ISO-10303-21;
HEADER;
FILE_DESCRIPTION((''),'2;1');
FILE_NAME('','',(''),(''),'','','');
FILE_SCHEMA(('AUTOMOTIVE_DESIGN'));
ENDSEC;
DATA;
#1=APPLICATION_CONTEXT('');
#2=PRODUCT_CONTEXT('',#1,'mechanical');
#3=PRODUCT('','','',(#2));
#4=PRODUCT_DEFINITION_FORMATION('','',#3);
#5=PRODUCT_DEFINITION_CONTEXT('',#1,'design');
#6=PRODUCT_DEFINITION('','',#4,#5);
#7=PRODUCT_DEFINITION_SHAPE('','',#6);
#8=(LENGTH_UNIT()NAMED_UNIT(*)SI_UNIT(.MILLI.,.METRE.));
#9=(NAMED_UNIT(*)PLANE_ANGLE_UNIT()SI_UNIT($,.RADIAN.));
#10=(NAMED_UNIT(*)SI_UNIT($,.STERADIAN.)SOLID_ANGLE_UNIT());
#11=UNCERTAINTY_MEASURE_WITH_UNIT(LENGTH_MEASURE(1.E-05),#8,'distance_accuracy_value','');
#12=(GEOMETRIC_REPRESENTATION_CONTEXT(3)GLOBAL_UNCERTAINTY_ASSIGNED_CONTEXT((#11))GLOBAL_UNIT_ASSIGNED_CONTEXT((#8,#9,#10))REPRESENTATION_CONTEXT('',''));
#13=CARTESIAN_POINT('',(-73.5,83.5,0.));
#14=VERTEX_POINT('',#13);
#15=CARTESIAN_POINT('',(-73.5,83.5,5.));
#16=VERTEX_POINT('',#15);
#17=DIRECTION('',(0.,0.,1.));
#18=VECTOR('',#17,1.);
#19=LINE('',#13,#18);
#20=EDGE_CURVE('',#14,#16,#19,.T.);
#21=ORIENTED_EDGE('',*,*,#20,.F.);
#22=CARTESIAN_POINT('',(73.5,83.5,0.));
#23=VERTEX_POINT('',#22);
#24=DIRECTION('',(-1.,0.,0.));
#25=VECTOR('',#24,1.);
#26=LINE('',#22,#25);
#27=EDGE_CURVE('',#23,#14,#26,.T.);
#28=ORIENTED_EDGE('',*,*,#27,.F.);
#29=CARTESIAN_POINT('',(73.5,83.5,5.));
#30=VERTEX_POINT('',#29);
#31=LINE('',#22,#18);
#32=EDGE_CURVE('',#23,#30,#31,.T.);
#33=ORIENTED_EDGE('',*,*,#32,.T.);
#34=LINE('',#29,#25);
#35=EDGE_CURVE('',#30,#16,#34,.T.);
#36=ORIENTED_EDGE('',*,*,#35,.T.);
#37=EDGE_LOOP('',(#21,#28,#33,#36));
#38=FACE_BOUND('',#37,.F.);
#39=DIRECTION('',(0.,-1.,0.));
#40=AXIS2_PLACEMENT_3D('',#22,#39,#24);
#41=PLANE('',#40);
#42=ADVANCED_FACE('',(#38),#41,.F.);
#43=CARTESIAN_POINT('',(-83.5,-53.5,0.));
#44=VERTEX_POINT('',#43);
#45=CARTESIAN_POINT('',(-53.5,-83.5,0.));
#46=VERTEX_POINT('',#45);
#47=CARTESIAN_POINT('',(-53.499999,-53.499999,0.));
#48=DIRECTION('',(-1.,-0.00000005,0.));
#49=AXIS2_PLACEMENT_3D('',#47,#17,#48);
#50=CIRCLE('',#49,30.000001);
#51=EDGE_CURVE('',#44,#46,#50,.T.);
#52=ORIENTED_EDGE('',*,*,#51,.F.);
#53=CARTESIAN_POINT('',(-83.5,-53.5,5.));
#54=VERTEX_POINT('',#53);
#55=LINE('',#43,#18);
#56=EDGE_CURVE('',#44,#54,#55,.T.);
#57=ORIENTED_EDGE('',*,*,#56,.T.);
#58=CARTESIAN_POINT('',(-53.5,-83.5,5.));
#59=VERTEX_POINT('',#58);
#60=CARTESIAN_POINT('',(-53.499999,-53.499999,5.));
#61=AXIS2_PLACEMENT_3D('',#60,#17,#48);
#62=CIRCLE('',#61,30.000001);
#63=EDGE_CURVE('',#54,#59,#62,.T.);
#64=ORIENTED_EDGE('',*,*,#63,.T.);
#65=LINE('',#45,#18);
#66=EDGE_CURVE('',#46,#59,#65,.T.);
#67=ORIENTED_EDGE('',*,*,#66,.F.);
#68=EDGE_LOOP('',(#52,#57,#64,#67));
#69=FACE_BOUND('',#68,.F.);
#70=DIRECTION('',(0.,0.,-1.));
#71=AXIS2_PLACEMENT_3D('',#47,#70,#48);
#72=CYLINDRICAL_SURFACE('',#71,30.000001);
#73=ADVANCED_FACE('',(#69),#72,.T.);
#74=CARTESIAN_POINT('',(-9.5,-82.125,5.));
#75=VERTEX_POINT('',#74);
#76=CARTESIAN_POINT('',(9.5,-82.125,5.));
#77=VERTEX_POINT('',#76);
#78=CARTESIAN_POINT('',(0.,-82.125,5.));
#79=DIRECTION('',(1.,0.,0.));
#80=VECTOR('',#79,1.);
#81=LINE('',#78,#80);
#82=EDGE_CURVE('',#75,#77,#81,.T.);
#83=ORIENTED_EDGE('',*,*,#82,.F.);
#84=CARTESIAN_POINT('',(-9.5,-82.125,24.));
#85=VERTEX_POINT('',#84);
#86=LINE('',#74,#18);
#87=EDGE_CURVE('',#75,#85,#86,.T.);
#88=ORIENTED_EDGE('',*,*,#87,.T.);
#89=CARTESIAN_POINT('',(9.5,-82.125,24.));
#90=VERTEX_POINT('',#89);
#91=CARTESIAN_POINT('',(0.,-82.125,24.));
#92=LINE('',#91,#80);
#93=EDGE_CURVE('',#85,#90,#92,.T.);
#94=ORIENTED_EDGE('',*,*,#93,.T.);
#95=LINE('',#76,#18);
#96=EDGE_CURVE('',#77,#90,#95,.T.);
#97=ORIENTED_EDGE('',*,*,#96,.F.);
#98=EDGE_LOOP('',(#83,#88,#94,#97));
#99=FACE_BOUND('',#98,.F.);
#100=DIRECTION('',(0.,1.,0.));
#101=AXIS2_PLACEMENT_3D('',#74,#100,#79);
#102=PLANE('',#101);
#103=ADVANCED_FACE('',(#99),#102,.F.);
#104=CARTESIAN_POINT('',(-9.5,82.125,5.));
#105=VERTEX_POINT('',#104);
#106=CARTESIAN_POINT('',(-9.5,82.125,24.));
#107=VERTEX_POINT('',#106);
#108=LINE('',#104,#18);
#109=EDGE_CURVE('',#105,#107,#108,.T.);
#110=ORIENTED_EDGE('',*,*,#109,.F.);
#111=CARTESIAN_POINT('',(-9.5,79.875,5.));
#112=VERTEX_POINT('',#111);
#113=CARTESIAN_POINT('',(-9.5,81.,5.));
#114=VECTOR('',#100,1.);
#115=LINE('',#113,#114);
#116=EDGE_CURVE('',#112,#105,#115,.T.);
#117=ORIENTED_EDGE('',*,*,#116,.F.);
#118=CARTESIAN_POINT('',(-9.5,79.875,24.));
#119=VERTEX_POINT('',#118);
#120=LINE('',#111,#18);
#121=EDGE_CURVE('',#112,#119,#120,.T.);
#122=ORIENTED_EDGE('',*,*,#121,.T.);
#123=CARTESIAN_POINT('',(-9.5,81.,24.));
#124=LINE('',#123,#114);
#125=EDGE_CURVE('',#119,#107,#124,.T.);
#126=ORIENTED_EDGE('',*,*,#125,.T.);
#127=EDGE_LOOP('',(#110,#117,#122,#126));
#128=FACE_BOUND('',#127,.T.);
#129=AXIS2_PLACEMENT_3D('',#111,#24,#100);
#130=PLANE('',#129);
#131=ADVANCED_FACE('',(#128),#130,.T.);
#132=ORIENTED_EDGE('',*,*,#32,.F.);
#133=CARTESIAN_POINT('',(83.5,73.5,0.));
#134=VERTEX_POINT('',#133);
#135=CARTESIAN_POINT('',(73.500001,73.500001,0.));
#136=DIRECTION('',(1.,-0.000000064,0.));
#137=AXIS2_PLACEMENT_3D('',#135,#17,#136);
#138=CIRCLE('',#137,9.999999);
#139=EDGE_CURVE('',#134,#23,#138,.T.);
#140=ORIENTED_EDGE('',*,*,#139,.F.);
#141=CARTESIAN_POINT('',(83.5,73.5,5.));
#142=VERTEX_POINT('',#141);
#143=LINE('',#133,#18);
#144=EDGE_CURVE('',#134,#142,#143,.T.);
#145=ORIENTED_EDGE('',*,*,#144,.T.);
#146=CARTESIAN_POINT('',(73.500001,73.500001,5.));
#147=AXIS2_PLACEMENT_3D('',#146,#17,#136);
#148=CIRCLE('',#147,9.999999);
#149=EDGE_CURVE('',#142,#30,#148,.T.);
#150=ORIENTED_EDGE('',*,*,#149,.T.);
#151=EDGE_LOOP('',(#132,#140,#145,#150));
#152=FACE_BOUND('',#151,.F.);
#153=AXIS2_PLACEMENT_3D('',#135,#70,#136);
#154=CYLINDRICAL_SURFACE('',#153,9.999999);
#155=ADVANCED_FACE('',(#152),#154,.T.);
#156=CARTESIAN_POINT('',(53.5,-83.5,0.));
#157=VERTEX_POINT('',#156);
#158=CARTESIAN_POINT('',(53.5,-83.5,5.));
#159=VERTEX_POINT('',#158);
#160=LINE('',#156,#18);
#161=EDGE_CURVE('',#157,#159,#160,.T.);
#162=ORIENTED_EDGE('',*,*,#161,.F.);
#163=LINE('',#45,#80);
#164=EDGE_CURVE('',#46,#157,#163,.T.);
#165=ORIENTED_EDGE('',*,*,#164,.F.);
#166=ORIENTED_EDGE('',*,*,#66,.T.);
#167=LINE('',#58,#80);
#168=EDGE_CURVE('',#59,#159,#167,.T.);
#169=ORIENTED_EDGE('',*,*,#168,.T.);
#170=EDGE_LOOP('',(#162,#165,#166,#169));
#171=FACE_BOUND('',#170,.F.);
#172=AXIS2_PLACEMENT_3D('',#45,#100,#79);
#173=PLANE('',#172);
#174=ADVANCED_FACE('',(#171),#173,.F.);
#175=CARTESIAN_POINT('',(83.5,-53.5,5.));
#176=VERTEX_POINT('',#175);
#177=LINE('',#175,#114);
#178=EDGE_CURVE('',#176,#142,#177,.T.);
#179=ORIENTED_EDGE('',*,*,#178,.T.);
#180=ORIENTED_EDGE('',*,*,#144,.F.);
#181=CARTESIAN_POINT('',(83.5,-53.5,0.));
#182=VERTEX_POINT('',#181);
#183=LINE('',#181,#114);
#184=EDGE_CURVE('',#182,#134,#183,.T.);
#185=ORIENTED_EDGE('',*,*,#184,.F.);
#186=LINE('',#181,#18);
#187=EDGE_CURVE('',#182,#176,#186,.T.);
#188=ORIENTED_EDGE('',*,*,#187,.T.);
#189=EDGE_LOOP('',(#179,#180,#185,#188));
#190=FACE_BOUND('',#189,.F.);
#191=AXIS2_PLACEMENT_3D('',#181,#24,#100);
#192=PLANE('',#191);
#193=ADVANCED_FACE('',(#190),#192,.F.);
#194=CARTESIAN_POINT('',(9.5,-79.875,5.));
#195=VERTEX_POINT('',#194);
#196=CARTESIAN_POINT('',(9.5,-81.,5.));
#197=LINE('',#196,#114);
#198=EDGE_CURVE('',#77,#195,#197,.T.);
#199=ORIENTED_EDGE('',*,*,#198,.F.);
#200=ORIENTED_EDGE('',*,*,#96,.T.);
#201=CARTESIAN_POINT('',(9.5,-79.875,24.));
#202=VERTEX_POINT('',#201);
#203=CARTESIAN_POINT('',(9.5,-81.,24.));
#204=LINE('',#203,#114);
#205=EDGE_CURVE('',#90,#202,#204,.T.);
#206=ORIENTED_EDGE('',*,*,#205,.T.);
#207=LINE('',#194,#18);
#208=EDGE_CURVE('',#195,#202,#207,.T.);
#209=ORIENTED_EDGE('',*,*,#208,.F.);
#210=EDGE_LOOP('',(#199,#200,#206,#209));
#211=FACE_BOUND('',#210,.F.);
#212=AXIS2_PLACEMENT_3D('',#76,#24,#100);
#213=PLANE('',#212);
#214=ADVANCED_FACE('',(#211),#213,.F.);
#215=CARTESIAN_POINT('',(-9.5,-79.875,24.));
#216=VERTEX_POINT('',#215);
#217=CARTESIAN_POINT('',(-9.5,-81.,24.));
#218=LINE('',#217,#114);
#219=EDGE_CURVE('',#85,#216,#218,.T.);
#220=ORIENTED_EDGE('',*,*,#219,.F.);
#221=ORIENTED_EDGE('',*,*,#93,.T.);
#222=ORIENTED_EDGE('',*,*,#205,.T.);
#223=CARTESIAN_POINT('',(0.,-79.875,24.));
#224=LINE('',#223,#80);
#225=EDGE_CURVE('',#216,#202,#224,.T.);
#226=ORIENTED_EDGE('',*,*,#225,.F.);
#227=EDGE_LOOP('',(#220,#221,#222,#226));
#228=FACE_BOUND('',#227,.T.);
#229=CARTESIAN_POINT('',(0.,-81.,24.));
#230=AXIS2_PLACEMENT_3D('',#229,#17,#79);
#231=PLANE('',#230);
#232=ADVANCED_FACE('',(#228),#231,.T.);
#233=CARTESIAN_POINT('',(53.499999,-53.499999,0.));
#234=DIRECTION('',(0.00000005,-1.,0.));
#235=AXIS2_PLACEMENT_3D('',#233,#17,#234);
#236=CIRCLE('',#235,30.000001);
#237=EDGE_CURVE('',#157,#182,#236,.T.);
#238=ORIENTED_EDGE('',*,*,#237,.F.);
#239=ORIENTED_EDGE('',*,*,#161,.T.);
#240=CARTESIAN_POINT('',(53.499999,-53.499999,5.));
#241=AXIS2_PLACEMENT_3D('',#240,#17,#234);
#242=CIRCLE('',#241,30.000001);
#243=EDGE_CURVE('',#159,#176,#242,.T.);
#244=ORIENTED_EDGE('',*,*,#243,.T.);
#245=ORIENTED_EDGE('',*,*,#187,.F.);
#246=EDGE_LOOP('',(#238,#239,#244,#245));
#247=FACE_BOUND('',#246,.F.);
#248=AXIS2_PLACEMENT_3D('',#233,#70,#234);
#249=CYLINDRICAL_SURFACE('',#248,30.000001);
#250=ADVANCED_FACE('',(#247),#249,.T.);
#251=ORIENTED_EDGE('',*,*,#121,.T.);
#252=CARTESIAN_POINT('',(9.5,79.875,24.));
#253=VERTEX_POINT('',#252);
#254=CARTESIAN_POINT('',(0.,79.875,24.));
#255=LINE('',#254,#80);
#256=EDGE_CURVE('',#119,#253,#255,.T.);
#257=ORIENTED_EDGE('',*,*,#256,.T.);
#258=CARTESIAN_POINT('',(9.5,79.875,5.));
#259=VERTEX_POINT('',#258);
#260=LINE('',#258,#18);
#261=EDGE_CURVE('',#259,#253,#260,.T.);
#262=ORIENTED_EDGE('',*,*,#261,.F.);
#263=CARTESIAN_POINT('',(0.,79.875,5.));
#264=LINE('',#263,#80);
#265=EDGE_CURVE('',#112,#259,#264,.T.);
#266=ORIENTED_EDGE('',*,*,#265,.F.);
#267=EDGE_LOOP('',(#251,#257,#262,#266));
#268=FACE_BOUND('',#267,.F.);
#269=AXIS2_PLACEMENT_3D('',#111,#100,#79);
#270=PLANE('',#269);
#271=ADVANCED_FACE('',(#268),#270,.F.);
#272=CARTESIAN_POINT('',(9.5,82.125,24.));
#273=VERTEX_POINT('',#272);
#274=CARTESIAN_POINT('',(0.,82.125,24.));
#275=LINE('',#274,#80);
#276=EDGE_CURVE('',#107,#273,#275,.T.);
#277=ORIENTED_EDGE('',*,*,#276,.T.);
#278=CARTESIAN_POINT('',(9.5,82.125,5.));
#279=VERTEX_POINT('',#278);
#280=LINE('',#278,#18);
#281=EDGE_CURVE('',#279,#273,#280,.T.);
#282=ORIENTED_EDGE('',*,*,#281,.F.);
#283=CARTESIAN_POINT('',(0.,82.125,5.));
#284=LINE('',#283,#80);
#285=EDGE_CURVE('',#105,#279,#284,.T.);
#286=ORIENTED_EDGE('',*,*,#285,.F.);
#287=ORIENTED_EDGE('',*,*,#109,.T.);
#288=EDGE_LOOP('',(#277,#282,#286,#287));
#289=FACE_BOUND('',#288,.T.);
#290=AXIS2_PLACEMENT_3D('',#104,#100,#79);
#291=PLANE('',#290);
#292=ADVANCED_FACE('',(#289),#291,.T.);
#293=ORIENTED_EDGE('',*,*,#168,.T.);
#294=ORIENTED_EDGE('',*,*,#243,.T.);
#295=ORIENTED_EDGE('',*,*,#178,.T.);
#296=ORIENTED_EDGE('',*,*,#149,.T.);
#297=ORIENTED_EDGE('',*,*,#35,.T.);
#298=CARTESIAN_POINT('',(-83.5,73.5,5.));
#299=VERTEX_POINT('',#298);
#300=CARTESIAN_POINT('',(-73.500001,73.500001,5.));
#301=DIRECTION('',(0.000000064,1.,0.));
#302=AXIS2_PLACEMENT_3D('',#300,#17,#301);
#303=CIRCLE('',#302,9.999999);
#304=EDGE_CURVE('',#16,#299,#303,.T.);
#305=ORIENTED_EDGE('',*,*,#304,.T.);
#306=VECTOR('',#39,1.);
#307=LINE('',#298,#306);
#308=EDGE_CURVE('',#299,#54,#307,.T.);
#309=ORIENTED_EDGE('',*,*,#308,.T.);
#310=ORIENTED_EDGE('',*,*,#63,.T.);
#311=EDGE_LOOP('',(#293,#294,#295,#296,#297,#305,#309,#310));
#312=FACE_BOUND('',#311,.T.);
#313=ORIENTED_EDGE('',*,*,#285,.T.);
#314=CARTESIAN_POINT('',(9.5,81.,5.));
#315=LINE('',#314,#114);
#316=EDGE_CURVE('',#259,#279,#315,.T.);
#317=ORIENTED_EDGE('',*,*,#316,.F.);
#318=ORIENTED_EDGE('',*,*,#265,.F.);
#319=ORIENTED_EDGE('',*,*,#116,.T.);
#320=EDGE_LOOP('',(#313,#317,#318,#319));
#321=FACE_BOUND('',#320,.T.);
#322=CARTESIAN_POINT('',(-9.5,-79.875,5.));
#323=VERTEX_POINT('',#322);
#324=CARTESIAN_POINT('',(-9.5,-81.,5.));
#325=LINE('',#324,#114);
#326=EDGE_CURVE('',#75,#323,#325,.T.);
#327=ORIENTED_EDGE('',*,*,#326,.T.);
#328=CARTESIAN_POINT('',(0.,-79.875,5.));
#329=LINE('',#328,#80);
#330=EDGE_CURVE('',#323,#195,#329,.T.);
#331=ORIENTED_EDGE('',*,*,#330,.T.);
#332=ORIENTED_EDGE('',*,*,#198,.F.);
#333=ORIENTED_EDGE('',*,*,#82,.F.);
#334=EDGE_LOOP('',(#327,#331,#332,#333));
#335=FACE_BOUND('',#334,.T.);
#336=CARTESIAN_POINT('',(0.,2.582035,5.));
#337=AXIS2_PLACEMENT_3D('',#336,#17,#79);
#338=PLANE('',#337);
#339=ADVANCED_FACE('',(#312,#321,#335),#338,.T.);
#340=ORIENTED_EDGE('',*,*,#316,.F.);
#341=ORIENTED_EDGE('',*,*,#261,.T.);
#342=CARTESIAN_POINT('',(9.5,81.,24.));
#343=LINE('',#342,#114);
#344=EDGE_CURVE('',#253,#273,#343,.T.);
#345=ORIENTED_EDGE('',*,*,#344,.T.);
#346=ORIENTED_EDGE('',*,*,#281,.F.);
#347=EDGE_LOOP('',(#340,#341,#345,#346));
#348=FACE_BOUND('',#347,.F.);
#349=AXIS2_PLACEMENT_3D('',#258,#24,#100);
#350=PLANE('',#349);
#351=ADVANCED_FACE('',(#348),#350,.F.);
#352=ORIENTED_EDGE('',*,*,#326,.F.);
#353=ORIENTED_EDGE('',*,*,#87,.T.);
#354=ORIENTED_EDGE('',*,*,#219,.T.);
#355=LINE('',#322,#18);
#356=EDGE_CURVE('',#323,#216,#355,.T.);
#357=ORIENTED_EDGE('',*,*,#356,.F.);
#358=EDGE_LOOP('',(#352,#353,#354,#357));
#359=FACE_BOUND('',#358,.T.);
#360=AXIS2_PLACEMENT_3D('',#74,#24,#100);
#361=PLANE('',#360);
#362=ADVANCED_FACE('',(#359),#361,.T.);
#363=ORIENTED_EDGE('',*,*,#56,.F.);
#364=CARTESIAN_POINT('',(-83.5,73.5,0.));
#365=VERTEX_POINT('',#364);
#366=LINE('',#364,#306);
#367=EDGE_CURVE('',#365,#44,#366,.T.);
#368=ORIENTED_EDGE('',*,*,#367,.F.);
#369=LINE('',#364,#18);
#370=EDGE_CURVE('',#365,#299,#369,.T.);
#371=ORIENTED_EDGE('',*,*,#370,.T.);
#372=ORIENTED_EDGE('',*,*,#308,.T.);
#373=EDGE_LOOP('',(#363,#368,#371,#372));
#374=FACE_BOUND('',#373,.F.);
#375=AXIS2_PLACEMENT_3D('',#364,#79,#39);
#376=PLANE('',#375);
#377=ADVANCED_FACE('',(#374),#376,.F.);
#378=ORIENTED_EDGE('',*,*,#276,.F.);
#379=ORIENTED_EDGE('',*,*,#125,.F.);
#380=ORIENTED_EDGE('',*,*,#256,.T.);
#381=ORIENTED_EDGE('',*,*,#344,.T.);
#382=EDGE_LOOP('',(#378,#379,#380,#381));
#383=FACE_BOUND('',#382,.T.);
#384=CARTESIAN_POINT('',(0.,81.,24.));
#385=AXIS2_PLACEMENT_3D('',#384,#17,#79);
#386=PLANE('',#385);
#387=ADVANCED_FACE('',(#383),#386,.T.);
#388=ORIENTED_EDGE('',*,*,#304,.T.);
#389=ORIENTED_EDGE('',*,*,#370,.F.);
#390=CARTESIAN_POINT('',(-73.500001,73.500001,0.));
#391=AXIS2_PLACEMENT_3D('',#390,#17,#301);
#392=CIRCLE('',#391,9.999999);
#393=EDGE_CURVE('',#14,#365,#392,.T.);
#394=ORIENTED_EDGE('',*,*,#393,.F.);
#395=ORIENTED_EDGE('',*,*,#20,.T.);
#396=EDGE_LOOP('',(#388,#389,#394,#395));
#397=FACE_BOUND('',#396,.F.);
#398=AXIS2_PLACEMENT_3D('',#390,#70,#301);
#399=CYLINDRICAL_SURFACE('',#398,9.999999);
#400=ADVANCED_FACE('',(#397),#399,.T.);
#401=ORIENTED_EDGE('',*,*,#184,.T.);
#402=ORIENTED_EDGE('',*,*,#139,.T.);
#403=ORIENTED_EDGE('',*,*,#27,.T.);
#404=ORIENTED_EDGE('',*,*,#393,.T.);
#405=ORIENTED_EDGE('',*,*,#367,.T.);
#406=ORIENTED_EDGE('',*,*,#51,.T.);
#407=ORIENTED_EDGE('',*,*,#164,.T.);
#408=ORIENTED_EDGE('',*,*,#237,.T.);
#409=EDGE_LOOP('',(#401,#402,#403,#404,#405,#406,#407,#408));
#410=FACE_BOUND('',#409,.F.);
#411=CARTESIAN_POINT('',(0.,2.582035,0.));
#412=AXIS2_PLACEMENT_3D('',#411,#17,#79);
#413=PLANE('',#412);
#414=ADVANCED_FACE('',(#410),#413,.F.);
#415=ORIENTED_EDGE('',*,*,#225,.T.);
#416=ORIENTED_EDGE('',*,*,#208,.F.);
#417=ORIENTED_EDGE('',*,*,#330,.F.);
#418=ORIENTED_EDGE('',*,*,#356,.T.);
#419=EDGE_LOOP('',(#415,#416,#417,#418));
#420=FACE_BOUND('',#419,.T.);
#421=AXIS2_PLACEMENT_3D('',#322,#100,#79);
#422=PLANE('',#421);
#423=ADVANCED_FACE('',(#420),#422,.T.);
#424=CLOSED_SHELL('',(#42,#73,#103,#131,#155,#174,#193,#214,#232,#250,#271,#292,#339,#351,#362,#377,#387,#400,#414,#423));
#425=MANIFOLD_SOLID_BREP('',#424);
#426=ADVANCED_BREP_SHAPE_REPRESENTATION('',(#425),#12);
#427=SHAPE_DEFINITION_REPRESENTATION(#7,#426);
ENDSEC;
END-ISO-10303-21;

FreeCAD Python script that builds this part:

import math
import FreeCAD as App
import Part
import Sketcher
Q = App.Units.Quantity


def add_polygon(sketch, points):
    """Adds a closed chain of lines whose ends are joined by coincident constraints."""
    first, n = sketch.GeometryCount, len(points)
    for a, b in zip(points, points[1:] + points[:1]):
        sketch.addGeometry(Part.LineSegment(App.Vector(*a, 0), App.Vector(*b, 0)), False)
    for i in range(n):
        sketch.addConstraint(Sketcher.Constraint("Coincident", first + i, 2, first + (i + 1) % n, 1))

doc = App.newDocument("Part")
body = doc.addObject("PartDesign::Body", "Body")

sketch1 = body.newObject("Sketcher::SketchObject", "Sketch")
sketch1.AttachmentSupport = (doc.getObject("XY_Plane"), [""])
sketch1.MapMode = "FlatFace"
sketch1.addGeometry(Part.LineSegment(App.Vector(-53.5, -83.5, 0), App.Vector(53.5, -83.5, 0)), False)
sketch1.addGeometry(Part.ArcOfCircle(Part.Circle(App.Vector(53.499999, -53.499999, 0), App.Vector(0, 0, 1), 30.000001), math.radians(-89.999997), math.radians(-0.000003)), False)
sketch1.addGeometry(Part.LineSegment(App.Vector(83.5, -53.5, 0), App.Vector(83.5, 73.5, 0)), False)
sketch1.addGeometry(Part.ArcOfCircle(Part.Circle(App.Vector(73.500001, 73.500001, 0), App.Vector(0, 0, 1), 9.999999), math.radians(-0.000004), math.radians(90.000004)), False)
sketch1.addGeometry(Part.LineSegment(App.Vector(73.5, 83.5, 0), App.Vector(-73.5, 83.5, 0)), False)
sketch1.addGeometry(Part.ArcOfCircle(Part.Circle(App.Vector(-73.500001, 73.500001, 0), App.Vector(0, 0, 1), 9.999999), math.radians(89.999996), math.radians(180.000004)), False)
sketch1.addGeometry(Part.LineSegment(App.Vector(-83.5, 73.5, 0), App.Vector(-83.5, -53.5, 0)), False)
sketch1.addGeometry(Part.ArcOfCircle(Part.Circle(App.Vector(-53.499999, -53.499999, 0), App.Vector(0, 0, 1), 30.000001), math.radians(-179.999997), math.radians(-90.000003)), False)
sketch1.addConstraint(Sketcher.Constraint("Tangent", 0, 2, 1, 1))
sketch1.addConstraint(Sketcher.Constraint("Tangent", 1, 2, 2, 1))
sketch1.addConstraint(Sketcher.Constraint("Tangent", 2, 2, 3, 1))
sketch1.addConstraint(Sketcher.Constraint("Tangent", 3, 2, 4, 1))
sketch1.addConstraint(Sketcher.Constraint("Tangent", 4, 2, 5, 1))
sketch1.addConstraint(Sketcher.Constraint("Tangent", 5, 2, 6, 1))
sketch1.addConstraint(Sketcher.Constraint("Tangent", 6, 2, 7, 1))
sketch1.addConstraint(Sketcher.Constraint("Tangent", 7, 2, 0, 1))
sketch1.addConstraint(Sketcher.Constraint("Horizontal", 0))
sketch1.addConstraint(Sketcher.Constraint("Vertical", 2))
sketch1.addConstraint(Sketcher.Constraint("Horizontal", 4))
sketch1.addConstraint(Sketcher.Constraint("Vertical", 6))
sketch1.addConstraint(Sketcher.Constraint("Equal", 3, 5))
sketch1.addConstraint(Sketcher.Constraint("Equal", 1, 7))
sketch1.addConstraint(Sketcher.Constraint("Radius", 1, Q("30.000001 mm")))
sketch1.addConstraint(Sketcher.Constraint("Radius", 3, Q("9.999999 mm")))
sketch1.addConstraint(Sketcher.Constraint("DistanceX", 0, 1, 0, 2, Q("107 mm")))
sketch1.addConstraint(Sketcher.Constraint("DistanceY", 2, 1, 2, 2, Q("127 mm")))
sketch1.addConstraint(Sketcher.Constraint("DistanceX", -1, 1, 1, 3, Q("53.499999 mm")))
sketch1.addConstraint(Sketcher.Constraint("DistanceY", 1, 3, -1, 1, Q("53.499999 mm")))
pad1 = body.newObject("PartDesign::Pad", "Pad")
pad1.Profile = sketch1
pad1.Length = 5

sketch2 = body.newObject("Sketcher::SketchObject", "Sketch001")
sketch2.AttachmentSupport = (doc.getObject("XY_Plane"), [""])
sketch2.MapMode = "FlatFace"
sketch2.AttachmentOffset = App.Placement(App.Vector(0, 0, 5), App.Rotation())
add_polygon(sketch2, [(-9.5, -79.875), (-9.5, -82.125), (9.5, -82.125), (9.5, -79.875)])
sketch2.addConstraint(Sketcher.Constraint("Vertical", 0))
sketch2.addConstraint(Sketcher.Constraint("Horizontal", 1))
sketch2.addConstraint(Sketcher.Constraint("Vertical", 2))
sketch2.addConstraint(Sketcher.Constraint("Horizontal", 3))
sketch2.addConstraint(Sketcher.Constraint("DistanceX", 1, 1, 1, 2, Q("19 mm")))
sketch2.addConstraint(Sketcher.Constraint("DistanceY", 0, 2, 0, 1, Q("2.25 mm")))
sketch2.addConstraint(Sketcher.Constraint("DistanceX", 0, 2, -1, 1, Q("9.5 mm")))
sketch2.addConstraint(Sketcher.Constraint("DistanceY", 0, 2, -1, 1, Q("82.125 mm")))
pad2 = body.newObject("PartDesign::Pad", "Pad001")
pad2.Profile = sketch2
pad2.Length = 19

sketch3 = body.newObject("Sketcher::SketchObject", "Sketch002")
sketch3.AttachmentSupport = (doc.getObject("XY_Plane"), [""])
sketch3.MapMode = "FlatFace"
sketch3.AttachmentOffset = App.Placement(App.Vector(0, 0, 5), App.Rotation())
add_polygon(sketch3, [(-9.5, 82.125), (-9.5, 79.875), (9.5, 79.875), (9.5, 82.125)])
sketch3.addConstraint(Sketcher.Constraint("Vertical", 0))
sketch3.addConstraint(Sketcher.Constraint("Horizontal", 1))
sketch3.addConstraint(Sketcher.Constraint("Vertical", 2))
sketch3.addConstraint(Sketcher.Constraint("Horizontal", 3))
sketch3.addConstraint(Sketcher.Constraint("DistanceX", 1, 1, 1, 2, Q("19 mm")))
sketch3.addConstraint(Sketcher.Constraint("DistanceY", 0, 2, 0, 1, Q("2.25 mm")))
sketch3.addConstraint(Sketcher.Constraint("DistanceX", 0, 2, -1, 1, Q("9.5 mm")))
sketch3.addConstraint(Sketcher.Constraint("DistanceY", -1, 1, 0, 2, Q("79.875 mm")))
pad3 = body.newObject("PartDesign::Pad", "Pad002")
pad3.Profile = sketch3
pad3.Length = 19

doc.recompute()
